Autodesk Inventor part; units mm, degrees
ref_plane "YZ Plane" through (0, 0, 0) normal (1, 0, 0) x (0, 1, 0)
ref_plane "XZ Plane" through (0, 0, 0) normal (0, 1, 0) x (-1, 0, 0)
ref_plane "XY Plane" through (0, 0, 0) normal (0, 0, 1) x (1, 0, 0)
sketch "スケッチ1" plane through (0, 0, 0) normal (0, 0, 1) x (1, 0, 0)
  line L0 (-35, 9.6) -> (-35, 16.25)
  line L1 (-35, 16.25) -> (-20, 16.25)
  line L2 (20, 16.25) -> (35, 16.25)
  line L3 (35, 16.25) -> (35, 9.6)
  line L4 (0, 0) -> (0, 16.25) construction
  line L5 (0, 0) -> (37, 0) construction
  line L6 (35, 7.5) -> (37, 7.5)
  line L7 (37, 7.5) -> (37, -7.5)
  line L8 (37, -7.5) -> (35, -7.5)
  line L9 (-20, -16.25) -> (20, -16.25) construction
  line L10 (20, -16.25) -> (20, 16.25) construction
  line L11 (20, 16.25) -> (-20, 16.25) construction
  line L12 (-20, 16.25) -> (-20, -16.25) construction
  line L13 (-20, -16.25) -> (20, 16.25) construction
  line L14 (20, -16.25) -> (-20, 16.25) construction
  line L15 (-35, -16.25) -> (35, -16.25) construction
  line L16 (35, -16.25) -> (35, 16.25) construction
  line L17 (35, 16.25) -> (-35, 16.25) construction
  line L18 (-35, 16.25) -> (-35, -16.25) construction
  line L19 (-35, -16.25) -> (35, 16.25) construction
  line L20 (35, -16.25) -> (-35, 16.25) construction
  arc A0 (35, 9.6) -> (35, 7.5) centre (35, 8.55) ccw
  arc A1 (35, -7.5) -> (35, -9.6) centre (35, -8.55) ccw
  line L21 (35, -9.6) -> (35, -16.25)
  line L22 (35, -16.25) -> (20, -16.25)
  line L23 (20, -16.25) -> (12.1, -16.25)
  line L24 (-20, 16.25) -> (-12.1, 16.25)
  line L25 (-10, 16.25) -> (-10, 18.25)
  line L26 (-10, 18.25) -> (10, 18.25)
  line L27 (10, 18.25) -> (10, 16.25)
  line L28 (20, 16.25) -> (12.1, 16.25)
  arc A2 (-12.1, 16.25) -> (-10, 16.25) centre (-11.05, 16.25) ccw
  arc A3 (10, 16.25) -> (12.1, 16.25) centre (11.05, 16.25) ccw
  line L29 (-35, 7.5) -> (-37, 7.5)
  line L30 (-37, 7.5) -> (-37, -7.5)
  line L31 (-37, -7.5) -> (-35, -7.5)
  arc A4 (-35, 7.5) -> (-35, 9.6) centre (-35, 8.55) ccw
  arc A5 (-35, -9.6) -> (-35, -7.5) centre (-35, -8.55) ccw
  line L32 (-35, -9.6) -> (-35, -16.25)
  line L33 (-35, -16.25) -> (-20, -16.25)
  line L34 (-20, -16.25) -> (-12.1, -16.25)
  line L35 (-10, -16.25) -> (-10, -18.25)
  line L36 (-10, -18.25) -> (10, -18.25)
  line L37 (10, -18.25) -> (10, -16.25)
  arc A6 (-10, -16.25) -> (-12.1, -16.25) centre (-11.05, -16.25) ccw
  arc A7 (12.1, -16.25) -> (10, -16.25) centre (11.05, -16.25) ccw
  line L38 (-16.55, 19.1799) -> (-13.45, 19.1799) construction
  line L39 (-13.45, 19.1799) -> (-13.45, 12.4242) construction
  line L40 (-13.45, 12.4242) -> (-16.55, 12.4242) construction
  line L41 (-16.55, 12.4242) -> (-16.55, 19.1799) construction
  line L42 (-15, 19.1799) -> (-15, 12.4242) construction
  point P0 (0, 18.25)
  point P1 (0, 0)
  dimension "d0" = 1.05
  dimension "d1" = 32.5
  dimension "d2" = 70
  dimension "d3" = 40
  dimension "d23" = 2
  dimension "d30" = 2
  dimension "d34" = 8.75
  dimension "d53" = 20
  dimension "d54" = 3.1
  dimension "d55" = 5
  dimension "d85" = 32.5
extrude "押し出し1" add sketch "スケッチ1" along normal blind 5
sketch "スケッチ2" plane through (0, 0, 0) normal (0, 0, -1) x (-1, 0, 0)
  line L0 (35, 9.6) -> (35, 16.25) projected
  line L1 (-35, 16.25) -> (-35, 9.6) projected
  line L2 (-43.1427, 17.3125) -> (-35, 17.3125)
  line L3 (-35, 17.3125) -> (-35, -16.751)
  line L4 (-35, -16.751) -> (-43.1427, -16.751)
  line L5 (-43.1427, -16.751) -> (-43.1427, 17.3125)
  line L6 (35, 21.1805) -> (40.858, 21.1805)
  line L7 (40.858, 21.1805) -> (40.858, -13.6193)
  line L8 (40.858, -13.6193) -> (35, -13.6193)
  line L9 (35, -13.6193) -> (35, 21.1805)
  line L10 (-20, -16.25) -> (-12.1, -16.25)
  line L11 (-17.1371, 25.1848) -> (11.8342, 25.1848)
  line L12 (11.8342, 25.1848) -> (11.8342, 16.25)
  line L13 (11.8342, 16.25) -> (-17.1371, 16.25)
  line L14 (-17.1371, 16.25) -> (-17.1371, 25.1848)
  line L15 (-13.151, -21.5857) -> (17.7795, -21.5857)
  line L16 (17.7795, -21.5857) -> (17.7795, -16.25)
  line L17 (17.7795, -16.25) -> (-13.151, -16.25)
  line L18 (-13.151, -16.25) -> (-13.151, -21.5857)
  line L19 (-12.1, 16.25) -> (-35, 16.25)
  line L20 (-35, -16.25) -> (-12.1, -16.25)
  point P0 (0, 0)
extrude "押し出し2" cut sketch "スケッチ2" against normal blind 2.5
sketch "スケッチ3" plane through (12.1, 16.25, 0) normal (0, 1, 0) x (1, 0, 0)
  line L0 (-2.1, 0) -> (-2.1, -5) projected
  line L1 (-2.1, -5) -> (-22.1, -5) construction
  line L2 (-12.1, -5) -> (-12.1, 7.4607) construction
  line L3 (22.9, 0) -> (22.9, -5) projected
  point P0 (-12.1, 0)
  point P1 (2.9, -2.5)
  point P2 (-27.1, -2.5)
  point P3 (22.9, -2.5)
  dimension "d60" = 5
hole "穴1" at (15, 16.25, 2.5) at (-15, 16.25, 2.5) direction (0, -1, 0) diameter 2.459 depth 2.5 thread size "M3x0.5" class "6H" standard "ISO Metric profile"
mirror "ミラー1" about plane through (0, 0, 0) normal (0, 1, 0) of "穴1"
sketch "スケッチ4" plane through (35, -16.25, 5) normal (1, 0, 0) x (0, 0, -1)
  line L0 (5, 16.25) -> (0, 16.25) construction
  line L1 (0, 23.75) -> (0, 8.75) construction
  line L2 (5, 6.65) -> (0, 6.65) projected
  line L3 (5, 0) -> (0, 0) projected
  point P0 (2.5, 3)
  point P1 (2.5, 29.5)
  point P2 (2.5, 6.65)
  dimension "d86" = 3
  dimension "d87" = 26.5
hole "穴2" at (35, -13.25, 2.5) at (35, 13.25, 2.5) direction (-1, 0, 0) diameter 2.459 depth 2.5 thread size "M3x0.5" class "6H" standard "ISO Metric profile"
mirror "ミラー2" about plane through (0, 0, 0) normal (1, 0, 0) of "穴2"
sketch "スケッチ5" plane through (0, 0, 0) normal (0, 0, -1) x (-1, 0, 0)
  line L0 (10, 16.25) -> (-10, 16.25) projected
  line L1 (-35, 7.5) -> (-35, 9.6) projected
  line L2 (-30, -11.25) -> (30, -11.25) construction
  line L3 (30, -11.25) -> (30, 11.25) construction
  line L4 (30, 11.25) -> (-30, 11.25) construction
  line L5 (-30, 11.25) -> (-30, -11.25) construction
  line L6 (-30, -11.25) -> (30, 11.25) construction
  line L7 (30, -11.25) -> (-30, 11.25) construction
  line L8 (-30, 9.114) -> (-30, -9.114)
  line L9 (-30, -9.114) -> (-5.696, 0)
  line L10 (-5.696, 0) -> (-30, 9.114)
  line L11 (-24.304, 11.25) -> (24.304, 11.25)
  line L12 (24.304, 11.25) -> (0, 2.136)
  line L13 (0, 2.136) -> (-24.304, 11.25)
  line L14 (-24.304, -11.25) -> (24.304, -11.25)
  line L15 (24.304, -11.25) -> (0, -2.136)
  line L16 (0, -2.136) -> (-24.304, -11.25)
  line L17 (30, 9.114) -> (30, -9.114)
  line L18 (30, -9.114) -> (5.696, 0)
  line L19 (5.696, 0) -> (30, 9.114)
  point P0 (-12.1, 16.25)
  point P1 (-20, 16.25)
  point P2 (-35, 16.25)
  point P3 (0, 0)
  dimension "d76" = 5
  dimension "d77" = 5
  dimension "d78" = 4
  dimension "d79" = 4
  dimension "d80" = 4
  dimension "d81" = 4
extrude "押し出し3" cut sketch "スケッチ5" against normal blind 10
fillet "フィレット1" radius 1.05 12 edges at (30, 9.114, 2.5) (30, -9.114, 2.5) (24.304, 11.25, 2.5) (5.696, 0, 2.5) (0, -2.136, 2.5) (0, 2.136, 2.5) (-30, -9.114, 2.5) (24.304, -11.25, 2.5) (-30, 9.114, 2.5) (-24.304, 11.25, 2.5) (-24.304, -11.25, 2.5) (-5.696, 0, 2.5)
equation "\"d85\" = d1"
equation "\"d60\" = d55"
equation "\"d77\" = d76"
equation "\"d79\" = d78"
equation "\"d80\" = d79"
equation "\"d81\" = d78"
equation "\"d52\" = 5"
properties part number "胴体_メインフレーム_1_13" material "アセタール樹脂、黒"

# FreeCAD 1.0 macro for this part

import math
import FreeCAD as App
import Part
import Sketcher

V = App.Vector


def edges_at(feature, points):
    """Names of the edges that pass closest to the given points."""
    edges = feature.Shape.Edges
    near = lambda p: min(range(len(edges)), key=lambda i: edges[i].distToShape(Part.Vertex(*p))[0])
    return sorted({f"Edge{near(p) + 1}" for p in points})


def add_polygon(sketch, points):
    """Adds a closed chain of lines whose ends are joined by coincident constraints."""
    first, n = sketch.GeometryCount, len(points)
    for a, b in zip(points, points[1:] + points[:1]):
        sketch.addGeometry(Part.LineSegment(App.Vector(*a, 0), App.Vector(*b, 0)), False)
    for i in range(n):
        sketch.addConstraint(Sketcher.Constraint("Coincident", first + i, 2, first + (i + 1) % n, 1))

doc = App.newDocument("Part")
body = doc.addObject("PartDesign::Body", "Body")

# Sketch on XY plane
sketch1 = doc.addObject("Sketcher::SketchObject", "Sketch")
body.addObject(sketch1)
sketch1.AttachmentSupport = (doc.XY_Plane, [""])
sketch1.MapMode = "FlatFace"
sketch1.addGeometry([
    Part.LineSegment(V(-35, 16.2, 0), V(-35, 9.6, 0)),  # 0
    Part.ArcOfCircle(Part.Circle(V(-35, 8.6, 0), V(0, 0, 1), 1.1), math.radians(-90), math.radians(90)),  # 1
    Part.LineSegment(V(-35, 7.5, 0), V(-37, 7.5, 0)),  # 2
    Part.LineSegment(V(-37, 7.5, 0), V(-37, -7.5, 0)),  # 3
    Part.LineSegment(V(-37, -7.5, 0), V(-35, -7.5, 0)),  # 4
    Part.ArcOfCircle(Part.Circle(V(-35, -8.6, 0), V(0, 0, 1), 1), math.radians(-90), math.radians(90)),  # 5
    Part.LineSegment(V(-35, -9.6, 0), V(-35, -16.2, 0)),  # 6
    Part.LineSegment(V(-35, -16.2, 0), V(-12.1, -16.2, 0)),  # 7
    Part.ArcOfCircle(Part.Circle(V(-11.1, -16.2, 0), V(0, 0, 1), 1.1), math.radians(0), math.radians(180)),  # 8
    Part.LineSegment(V(-10, -16.2, 0), V(-10, -18.2, 0)),  # 9
    Part.LineSegment(V(-10, -18.2, 0), V(10, -18.2, 0)),  # 10
    Part.LineSegment(V(10, -18.2, 0), V(10, -16.2, 0)),  # 11
    Part.ArcOfCircle(Part.Circle(V(11.1, -16.2, 0), V(0, 0, 1), 1), math.radians(0), math.radians(180)),  # 12
    Part.LineSegment(V(12.1, -16.2, 0), V(35, -16.2, 0)),  # 13
    Part.LineSegment(V(35, -16.2, 0), V(35, -9.6, 0)),  # 14
    Part.ArcOfCircle(Part.Circle(V(35, -8.6, 0), V(0, 0, 1), 1.1), math.radians(90), math.radians(270)),  # 15
    Part.LineSegment(V(35, -7.5, 0), V(37, -7.5, 0)),  # 16
    Part.LineSegment(V(37, -7.5, 0), V(37, 7.5, 0)),  # 17
    Part.LineSegment(V(37, 7.5, 0), V(35, 7.5, 0)),  # 18
    Part.ArcOfCircle(Part.Circle(V(35, 8.6, 0), V(0, 0, 1), 1), math.radians(90), math.radians(270)),  # 19
    Part.LineSegment(V(35, 9.6, 0), V(35, 16.2, 0)),  # 20
    Part.LineSegment(V(35, 16.2, 0), V(12.1, 16.2, 0)),  # 21
    Part.ArcOfCircle(Part.Circle(V(11.1, 16.2, 0), V(0, 0, 1), 1.1), math.radians(180), math.radians(360)),  # 22
    Part.LineSegment(V(10, 16.2, 0), V(10, 18.2, 0)),  # 23
    Part.LineSegment(V(10, 18.2, 0), V(-10, 18.2, 0)),  # 24
    Part.LineSegment(V(-10, 18.2, 0), V(-10, 16.2, 0)),  # 25
    Part.ArcOfCircle(Part.Circle(V(-11.1, 16.2, 0), V(0, 0, 1), 1), math.radians(180), math.radians(360)),  # 26
    Part.LineSegment(V(-12.1, 16.2, 0), V(-35, 16.2, 0)),  # 27
], False)
sketch1.addConstraint([
    Sketcher.Constraint("Coincident", 0, 2, 1, 2),
    Sketcher.Constraint("Tangent", 1, 1, 2, 1),
    Sketcher.Constraint("Coincident", 2, 2, 3, 1),
    Sketcher.Constraint("Coincident", 3, 2, 4, 1),
    Sketcher.Constraint("Tangent", 4, 2, 5, 2),
    Sketcher.Constraint("Coincident", 5, 1, 6, 1),
    Sketcher.Constraint("Coincident", 6, 2, 7, 1),
    Sketcher.Constraint("Coincident", 7, 2, 8, 2),
    Sketcher.Constraint("Tangent", 8, 1, 9, 1),
    Sketcher.Constraint("Coincident", 9, 2, 10, 1),
    Sketcher.Constraint("Coincident", 10, 2, 11, 1),
    Sketcher.Constraint("Tangent", 11, 2, 12, 2),
    Sketcher.Constraint("Coincident", 12, 1, 13, 1),
    Sketcher.Constraint("Coincident", 13, 2, 14, 1),
    Sketcher.Constraint("Coincident", 14, 2, 15, 2),
    Sketcher.Constraint("Tangent", 15, 1, 16, 1),
    Sketcher.Constraint("Coincident", 16, 2, 17, 1),
    Sketcher.Constraint("Coincident", 17, 2, 18, 1),
    Sketcher.Constraint("Tangent", 18, 2, 19, 2),
    Sketcher.Constraint("Coincident", 19, 1, 20, 1),
    Sketcher.Constraint("Coincident", 20, 2, 21, 1),
    Sketcher.Constraint("Coincident", 21, 2, 22, 2),
    Sketcher.Constraint("Tangent", 22, 1, 23, 1),
    Sketcher.Constraint("Coincident", 23, 2, 24, 1),
    Sketcher.Constraint("Coincident", 24, 2, 25, 1),
    Sketcher.Constraint("Tangent", 25, 2, 26, 2),
    Sketcher.Constraint("Coincident", 26, 1, 27, 1),
    Sketcher.Constraint("Coincident", 27, 2, 0, 1),
    Sketcher.Constraint("Vertical", 0),
    Sketcher.Constraint("Horizontal", 2),
    Sketcher.Constraint("Vertical", 3),
    Sketcher.Constraint("Horizontal", 4),
    Sketcher.Constraint("Vertical", 6),
    Sketcher.Constraint("Horizontal", 7),
    Sketcher.Constraint("Vertical", 9),
    Sketcher.Constraint("Horizontal", 10),
    Sketcher.Constraint("Vertical", 11),
    Sketcher.Constraint("Horizontal", 13),
    Sketcher.Constraint("Vertical", 14),
    Sketcher.Constraint("Horizontal", 16),
    Sketcher.Constraint("Vertical", 17),
    Sketcher.Constraint("Horizontal", 18),
    Sketcher.Constraint("Vertical", 20),
    Sketcher.Constraint("Horizontal", 21),
    Sketcher.Constraint("Vertical", 23),
    Sketcher.Constraint("Horizontal", 24),
    Sketcher.Constraint("Vertical", 25),
    Sketcher.Constraint("Horizontal", 27),
    Sketcher.Constraint("Equal", 1, 5),
    Sketcher.Constraint("Equal", 5, 8),
    Sketcher.Constraint("Equal", 8, 12),
    Sketcher.Constraint("Equal", 12, 15),
    Sketcher.Constraint("Equal", 15, 19),
    Sketcher.Constraint("Equal", 19, 22),
    Sketcher.Constraint("Equal", 22, 26),
    Sketcher.Constraint("Symmetric", 1, 3, 15, 3, -1, 1),
    Sketcher.Constraint("Symmetric", 5, 3, 19, 3, -1, 1),
    Sketcher.Constraint("Symmetric", 8, 3, 22, 3, -1, 1),
    Sketcher.Constraint("Symmetric", 12, 3, 26, 3, -1, 1),
    Sketcher.Constraint("Symmetric", 6, 2, 20, 2, -1, 1),
    Sketcher.Constraint("Symmetric", 13, 2, 27, 2, -1, 1),
    Sketcher.Constraint("Symmetric", 8, 3, 12, 3, -2),
    Sketcher.Constraint("Symmetric", 5, 3, 15, 3, -2),
    Sketcher.Constraint("Symmetric", 6, 2, 13, 2, -2),
    Sketcher.Constraint("Horizontal", 12, 3, 6, 2),
    Sketcher.Constraint("Vertical", 5, 3, 0, 2),
    Sketcher.Constraint("Equal", 4, 16),
    Sketcher.Constraint("Equal", 18, 9),
    Sketcher.Constraint("Equal", 11, 23),
    Sketcher.Constraint("DistanceX", 2, 2, 2, 1, 2.0),
    Sketcher.Constraint("DistanceX", 10, 1, 10, 2, 20.0),
    Sketcher.Constraint("Radius", 1, 1.05),
    Sketcher.Constraint("DistanceX", 5, 3, 15, 3, 70.0),
    Sketcher.Constraint("DistanceY", 12, 3, 22, 3, 32.5),
    Sketcher.Constraint("DistanceY", 3, 2, 3, 1, 15.0),
])
pad1 = doc.addObject("PartDesign::Pad", "Pad")
body.addObject(pad1)
pad1.Profile = sketch1
pad1.Length = 5

# Sketch on XY plane
sketch2 = doc.addObject("Sketcher::SketchObject", "Sketch001")
body.addObject(sketch2)
sketch2.AttachmentSupport = (doc.XY_Plane, [""])
sketch2.MapMode = "FlatFace"
add_polygon(sketch2, [(-35, 21), (-35, -14), (-41, -14), (-41, 21)])  # lines 0-3
add_polygon(sketch2, [(-18, -16), (13, -16), (13, -22), (-18, -22)])  # lines 4-7
add_polygon(sketch2, [(35, -17), (35, 17), (43, 17), (43, -17)])  # lines 8-11
add_polygon(sketch2, [(17, 25), (17, 16), (-12, 16), (-12, 25)])  # lines 12-15
sketch2.addConstraint([
    Sketcher.Constraint("Vertical", 0),
    Sketcher.Constraint("Horizontal", 1),
    Sketcher.Constraint("Vertical", 2),
    Sketcher.Constraint("Horizontal", 3),
    Sketcher.Constraint("Horizontal", 4),
    Sketcher.Constraint("Vertical", 5),
    Sketcher.Constraint("Horizontal", 6),
    Sketcher.Constraint("Vertical", 7),
    Sketcher.Constraint("Vertical", 8),
    Sketcher.Constraint("Horizontal", 9),
    Sketcher.Constraint("Vertical", 10),
    Sketcher.Constraint("Horizontal", 11),
    Sketcher.Constraint("Vertical", 12),
    Sketcher.Constraint("Horizontal", 13),
    Sketcher.Constraint("Vertical", 14),
    Sketcher.Constraint("Horizontal", 15),
    Sketcher.Constraint("DistanceX", 0, 2, -1, 1, 35.0),
    Sketcher.Constraint("DistanceX", -1, 1, 8, 2, 35.0),
    Sketcher.Constraint("DistanceY", 4, 2, 12, 2, 32.5),
    Sketcher.Constraint("DistanceX", 1, 2, 1, 1, 5.858),
    Sketcher.Constraint("DistanceY", 4, 2, -1, 1, 16.25),
    Sketcher.Constraint("DistanceX", 4, 1, 4, 2, 30.9305),
    Sketcher.Constraint("DistanceX", 9, 1, 9, 2, 8.1427),
    Sketcher.Constraint("DistanceX", 13, 2, 13, 1, 28.9713),
    Sketcher.Constraint("DistanceY", 0, 2, 0, 1, 34.7998),
    Sketcher.Constraint("DistanceY", 5, 2, 5, 1, 5.3357),
    Sketcher.Constraint("DistanceY", 8, 1, 8, 2, 34.0635),
    Sketcher.Constraint("DistanceY", 12, 2, 12, 1, 8.9348),
    Sketcher.Constraint("DistanceX", -1, 1, 4, 2, 13.151),
    Sketcher.Constraint("DistanceY", 10, 2, -1, 1, 16.751),
    Sketcher.Constraint("DistanceX", -1, 1, 12, 2, 17.137),
    Sketcher.Constraint("DistanceY", 8, 2, 3, 2, 3.868),
])
pocket1 = doc.addObject("PartDesign::Pocket", "Pocket")
body.addObject(pocket1)
pocket1.Profile = sketch2
pocket1.Length = 2.5
pocket1.Reversed = True

# Sketch on XZ plane
sketch3 = doc.addObject("Sketcher::SketchObject", "Sketch002")
body.addObject(sketch3)
sketch3.AttachmentSupport = (doc.XZ_Plane, [""])
sketch3.MapMode = "FlatFace"
sketch3.AttachmentOffset = App.Placement(V(0, 0, -16.25), App.Rotation())
sketch3.addGeometry([
    Part.Circle(V(15, 2.5, 0), V(0, 0, 1), 1.2),
    Part.Circle(V(-15, 2.5, 0), V(0, 0, 1), 1.2),
], False)
sketch3.addConstraint([
    Sketcher.Constraint("Equal", 0, 1),
    Sketcher.Constraint("Symmetric", 0, 3, 1, 3, -2),
    Sketcher.Constraint("Diameter", 0, 2.459),
    Sketcher.Constraint("DistanceX", -1, 1, 0, 3, 15.0),
    Sketcher.Constraint("DistanceY", -1, 1, 0, 3, 2.5),
])
doc.recompute()
hole = doc.addObject("PartDesign::Hole", "Hole")
body.addObject(hole)
hole.Profile = sketch3
hole.ThreadType = "None"
hole.Diameter = 2.459
hole.DepthType = "Dimension"
hole.Depth = 2.5
hole.DrillPoint = "Flat"
hole.Reversed = True
doc.recompute()

mirrored = doc.addObject("PartDesign::Mirrored", "Mirrored")
body.addObject(mirrored)
mirrored.Originals = [hole]
mirrored.MirrorPlane = (doc.XZ_Plane, [""])
body.Tip = mirrored

# Sketch on YZ plane
sketch4 = doc.addObject("Sketcher::SketchObject", "Sketch003")
body.addObject(sketch4)
sketch4.AttachmentSupport = (doc.YZ_Plane, [""])
sketch4.MapMode = "FlatFace"
sketch4.AttachmentOffset = App.Placement(V(0, 0, 35), App.Rotation())
sketch4.addGeometry([
    Part.Circle(V(-13.2, 2.5, 0), V(0, 0, 1), 1.2),
    Part.Circle(V(13.2, 2.5, 0), V(0, 0, 1), 1.2),
], False)
sketch4.addConstraint([
    Sketcher.Constraint("Equal", 0, 1),
    Sketcher.Constraint("Symmetric", 0, 3, 1, 3, -2),
    Sketcher.Constraint("Diameter", 0, 2.459),
    Sketcher.Constraint("DistanceY", -1, 1, 0, 3, 2.5),
    Sketcher.Constraint("DistanceX", 0, 3, 1, 3, 26.5),
])
doc.recompute()
hole2 = doc.addObject("PartDesign::Hole", "Hole001")
body.addObject(hole2)
hole2.Profile = sketch4
hole2.ThreadType = "None"
hole2.Diameter = 2.459
hole2.DepthType = "Dimension"
hole2.Depth = 2.5
hole2.DrillPoint = "Flat"
doc.recompute()

mirrored2 = doc.addObject("PartDesign::Mirrored", "Mirrored001")
body.addObject(mirrored2)
mirrored2.Originals = [hole2]
mirrored2.MirrorPlane = (doc.YZ_Plane, [""])
body.Tip = mirrored2

# Sketch on XY plane
sketch5 = doc.addObject("Sketcher::SketchObject", "Sketch004")
body.addObject(sketch5)
sketch5.AttachmentSupport = (doc.XY_Plane, [""])
sketch5.MapMode = "FlatFace"
add_polygon(sketch5, [(6, 0), (30, 9), (30, -9)])  # lines 0-2
add_polygon(sketch5, [(-24, 11), (24, 11), (0, 2)])  # lines 3-5
add_polygon(sketch5, [(0, -2), (24, -11), (-24, -11)])  # lines 6-8
add_polygon(sketch5, [(-30, -9), (-30, 9), (-6, 0)])  # lines 9-11
sketch5.addConstraint([
    Sketcher.Constraint("Vertical", 1),
    Sketcher.Constraint("Horizontal", 3),
    Sketcher.Constraint("Horizontal", 7),
    Sketcher.Constraint("Vertical", 9),
    Sketcher.Constraint("Symmetric", 5, 2, 6, 2, -1, 1),
    Sketcher.Constraint("Symmetric", 4, 2, 8, 2, -1, 1),
    Sketcher.Constraint("Symmetric", 1, 2, 9, 2, -1, 1),
    Sketcher.Constraint("Symmetric", 2, 2, 10, 2, -1, 1),
    Sketcher.Constraint("PointOnObject", 2, 2, -1),
    Sketcher.Constraint("PointOnObject", 4, 2, -2),
    Sketcher.Constraint("Parallel", 0, 4),
    Sketcher.Constraint("Parallel", 2, 5),
    Sketcher.Constraint("Parallel", 4, 8),
    Sketcher.Constraint("Parallel", 8, 11),
    Sketcher.Constraint("Horizontal", 0, 2, 9, 2),
    Sketcher.Constraint("Equal", 2, 4),
    Sketcher.Constraint("DistanceX", -1, 1, 0, 2, 30.0),
    Sketcher.Constraint("DistanceY", 6, 2, 3, 2, 22.5),
    Sketcher.Constraint("DistanceX", 3, 1, 3, 2, 48.608),
    Sketcher.Constraint("DistanceY", 1, 2, 1, 1, 18.228),
])
pocket2 = doc.addObject("PartDesign::Pocket", "Pocket001")
body.addObject(pocket2)
pocket2.Profile = sketch5
pocket2.Length = 10
pocket2.Reversed = True
doc.recompute()

fillet = doc.addObject("PartDesign::Fillet", "Fillet")
body.addObject(fillet)
fillet.Base = (pocket2, edges_at(pocket2, [
    (30, 9.114, 2.5),
    (30, -9.114, 2.5),
    (24.304, 11.25, 2.5),
    (5.696, 0, 2.5),
    (0, -2.136, 2.5),
    (0, 2.136, 2.5),
    (-30, -9.114, 2.5),
    (24.304, -11.25, 2.5),
    (-30, 9.114, 2.5),
    (-24.304, 11.25, 2.5),
    (-24.304, -11.25, 2.5),
    (-5.696, 0, 2.5),
]))
fillet.Radius = 1.05

doc.recompute()
